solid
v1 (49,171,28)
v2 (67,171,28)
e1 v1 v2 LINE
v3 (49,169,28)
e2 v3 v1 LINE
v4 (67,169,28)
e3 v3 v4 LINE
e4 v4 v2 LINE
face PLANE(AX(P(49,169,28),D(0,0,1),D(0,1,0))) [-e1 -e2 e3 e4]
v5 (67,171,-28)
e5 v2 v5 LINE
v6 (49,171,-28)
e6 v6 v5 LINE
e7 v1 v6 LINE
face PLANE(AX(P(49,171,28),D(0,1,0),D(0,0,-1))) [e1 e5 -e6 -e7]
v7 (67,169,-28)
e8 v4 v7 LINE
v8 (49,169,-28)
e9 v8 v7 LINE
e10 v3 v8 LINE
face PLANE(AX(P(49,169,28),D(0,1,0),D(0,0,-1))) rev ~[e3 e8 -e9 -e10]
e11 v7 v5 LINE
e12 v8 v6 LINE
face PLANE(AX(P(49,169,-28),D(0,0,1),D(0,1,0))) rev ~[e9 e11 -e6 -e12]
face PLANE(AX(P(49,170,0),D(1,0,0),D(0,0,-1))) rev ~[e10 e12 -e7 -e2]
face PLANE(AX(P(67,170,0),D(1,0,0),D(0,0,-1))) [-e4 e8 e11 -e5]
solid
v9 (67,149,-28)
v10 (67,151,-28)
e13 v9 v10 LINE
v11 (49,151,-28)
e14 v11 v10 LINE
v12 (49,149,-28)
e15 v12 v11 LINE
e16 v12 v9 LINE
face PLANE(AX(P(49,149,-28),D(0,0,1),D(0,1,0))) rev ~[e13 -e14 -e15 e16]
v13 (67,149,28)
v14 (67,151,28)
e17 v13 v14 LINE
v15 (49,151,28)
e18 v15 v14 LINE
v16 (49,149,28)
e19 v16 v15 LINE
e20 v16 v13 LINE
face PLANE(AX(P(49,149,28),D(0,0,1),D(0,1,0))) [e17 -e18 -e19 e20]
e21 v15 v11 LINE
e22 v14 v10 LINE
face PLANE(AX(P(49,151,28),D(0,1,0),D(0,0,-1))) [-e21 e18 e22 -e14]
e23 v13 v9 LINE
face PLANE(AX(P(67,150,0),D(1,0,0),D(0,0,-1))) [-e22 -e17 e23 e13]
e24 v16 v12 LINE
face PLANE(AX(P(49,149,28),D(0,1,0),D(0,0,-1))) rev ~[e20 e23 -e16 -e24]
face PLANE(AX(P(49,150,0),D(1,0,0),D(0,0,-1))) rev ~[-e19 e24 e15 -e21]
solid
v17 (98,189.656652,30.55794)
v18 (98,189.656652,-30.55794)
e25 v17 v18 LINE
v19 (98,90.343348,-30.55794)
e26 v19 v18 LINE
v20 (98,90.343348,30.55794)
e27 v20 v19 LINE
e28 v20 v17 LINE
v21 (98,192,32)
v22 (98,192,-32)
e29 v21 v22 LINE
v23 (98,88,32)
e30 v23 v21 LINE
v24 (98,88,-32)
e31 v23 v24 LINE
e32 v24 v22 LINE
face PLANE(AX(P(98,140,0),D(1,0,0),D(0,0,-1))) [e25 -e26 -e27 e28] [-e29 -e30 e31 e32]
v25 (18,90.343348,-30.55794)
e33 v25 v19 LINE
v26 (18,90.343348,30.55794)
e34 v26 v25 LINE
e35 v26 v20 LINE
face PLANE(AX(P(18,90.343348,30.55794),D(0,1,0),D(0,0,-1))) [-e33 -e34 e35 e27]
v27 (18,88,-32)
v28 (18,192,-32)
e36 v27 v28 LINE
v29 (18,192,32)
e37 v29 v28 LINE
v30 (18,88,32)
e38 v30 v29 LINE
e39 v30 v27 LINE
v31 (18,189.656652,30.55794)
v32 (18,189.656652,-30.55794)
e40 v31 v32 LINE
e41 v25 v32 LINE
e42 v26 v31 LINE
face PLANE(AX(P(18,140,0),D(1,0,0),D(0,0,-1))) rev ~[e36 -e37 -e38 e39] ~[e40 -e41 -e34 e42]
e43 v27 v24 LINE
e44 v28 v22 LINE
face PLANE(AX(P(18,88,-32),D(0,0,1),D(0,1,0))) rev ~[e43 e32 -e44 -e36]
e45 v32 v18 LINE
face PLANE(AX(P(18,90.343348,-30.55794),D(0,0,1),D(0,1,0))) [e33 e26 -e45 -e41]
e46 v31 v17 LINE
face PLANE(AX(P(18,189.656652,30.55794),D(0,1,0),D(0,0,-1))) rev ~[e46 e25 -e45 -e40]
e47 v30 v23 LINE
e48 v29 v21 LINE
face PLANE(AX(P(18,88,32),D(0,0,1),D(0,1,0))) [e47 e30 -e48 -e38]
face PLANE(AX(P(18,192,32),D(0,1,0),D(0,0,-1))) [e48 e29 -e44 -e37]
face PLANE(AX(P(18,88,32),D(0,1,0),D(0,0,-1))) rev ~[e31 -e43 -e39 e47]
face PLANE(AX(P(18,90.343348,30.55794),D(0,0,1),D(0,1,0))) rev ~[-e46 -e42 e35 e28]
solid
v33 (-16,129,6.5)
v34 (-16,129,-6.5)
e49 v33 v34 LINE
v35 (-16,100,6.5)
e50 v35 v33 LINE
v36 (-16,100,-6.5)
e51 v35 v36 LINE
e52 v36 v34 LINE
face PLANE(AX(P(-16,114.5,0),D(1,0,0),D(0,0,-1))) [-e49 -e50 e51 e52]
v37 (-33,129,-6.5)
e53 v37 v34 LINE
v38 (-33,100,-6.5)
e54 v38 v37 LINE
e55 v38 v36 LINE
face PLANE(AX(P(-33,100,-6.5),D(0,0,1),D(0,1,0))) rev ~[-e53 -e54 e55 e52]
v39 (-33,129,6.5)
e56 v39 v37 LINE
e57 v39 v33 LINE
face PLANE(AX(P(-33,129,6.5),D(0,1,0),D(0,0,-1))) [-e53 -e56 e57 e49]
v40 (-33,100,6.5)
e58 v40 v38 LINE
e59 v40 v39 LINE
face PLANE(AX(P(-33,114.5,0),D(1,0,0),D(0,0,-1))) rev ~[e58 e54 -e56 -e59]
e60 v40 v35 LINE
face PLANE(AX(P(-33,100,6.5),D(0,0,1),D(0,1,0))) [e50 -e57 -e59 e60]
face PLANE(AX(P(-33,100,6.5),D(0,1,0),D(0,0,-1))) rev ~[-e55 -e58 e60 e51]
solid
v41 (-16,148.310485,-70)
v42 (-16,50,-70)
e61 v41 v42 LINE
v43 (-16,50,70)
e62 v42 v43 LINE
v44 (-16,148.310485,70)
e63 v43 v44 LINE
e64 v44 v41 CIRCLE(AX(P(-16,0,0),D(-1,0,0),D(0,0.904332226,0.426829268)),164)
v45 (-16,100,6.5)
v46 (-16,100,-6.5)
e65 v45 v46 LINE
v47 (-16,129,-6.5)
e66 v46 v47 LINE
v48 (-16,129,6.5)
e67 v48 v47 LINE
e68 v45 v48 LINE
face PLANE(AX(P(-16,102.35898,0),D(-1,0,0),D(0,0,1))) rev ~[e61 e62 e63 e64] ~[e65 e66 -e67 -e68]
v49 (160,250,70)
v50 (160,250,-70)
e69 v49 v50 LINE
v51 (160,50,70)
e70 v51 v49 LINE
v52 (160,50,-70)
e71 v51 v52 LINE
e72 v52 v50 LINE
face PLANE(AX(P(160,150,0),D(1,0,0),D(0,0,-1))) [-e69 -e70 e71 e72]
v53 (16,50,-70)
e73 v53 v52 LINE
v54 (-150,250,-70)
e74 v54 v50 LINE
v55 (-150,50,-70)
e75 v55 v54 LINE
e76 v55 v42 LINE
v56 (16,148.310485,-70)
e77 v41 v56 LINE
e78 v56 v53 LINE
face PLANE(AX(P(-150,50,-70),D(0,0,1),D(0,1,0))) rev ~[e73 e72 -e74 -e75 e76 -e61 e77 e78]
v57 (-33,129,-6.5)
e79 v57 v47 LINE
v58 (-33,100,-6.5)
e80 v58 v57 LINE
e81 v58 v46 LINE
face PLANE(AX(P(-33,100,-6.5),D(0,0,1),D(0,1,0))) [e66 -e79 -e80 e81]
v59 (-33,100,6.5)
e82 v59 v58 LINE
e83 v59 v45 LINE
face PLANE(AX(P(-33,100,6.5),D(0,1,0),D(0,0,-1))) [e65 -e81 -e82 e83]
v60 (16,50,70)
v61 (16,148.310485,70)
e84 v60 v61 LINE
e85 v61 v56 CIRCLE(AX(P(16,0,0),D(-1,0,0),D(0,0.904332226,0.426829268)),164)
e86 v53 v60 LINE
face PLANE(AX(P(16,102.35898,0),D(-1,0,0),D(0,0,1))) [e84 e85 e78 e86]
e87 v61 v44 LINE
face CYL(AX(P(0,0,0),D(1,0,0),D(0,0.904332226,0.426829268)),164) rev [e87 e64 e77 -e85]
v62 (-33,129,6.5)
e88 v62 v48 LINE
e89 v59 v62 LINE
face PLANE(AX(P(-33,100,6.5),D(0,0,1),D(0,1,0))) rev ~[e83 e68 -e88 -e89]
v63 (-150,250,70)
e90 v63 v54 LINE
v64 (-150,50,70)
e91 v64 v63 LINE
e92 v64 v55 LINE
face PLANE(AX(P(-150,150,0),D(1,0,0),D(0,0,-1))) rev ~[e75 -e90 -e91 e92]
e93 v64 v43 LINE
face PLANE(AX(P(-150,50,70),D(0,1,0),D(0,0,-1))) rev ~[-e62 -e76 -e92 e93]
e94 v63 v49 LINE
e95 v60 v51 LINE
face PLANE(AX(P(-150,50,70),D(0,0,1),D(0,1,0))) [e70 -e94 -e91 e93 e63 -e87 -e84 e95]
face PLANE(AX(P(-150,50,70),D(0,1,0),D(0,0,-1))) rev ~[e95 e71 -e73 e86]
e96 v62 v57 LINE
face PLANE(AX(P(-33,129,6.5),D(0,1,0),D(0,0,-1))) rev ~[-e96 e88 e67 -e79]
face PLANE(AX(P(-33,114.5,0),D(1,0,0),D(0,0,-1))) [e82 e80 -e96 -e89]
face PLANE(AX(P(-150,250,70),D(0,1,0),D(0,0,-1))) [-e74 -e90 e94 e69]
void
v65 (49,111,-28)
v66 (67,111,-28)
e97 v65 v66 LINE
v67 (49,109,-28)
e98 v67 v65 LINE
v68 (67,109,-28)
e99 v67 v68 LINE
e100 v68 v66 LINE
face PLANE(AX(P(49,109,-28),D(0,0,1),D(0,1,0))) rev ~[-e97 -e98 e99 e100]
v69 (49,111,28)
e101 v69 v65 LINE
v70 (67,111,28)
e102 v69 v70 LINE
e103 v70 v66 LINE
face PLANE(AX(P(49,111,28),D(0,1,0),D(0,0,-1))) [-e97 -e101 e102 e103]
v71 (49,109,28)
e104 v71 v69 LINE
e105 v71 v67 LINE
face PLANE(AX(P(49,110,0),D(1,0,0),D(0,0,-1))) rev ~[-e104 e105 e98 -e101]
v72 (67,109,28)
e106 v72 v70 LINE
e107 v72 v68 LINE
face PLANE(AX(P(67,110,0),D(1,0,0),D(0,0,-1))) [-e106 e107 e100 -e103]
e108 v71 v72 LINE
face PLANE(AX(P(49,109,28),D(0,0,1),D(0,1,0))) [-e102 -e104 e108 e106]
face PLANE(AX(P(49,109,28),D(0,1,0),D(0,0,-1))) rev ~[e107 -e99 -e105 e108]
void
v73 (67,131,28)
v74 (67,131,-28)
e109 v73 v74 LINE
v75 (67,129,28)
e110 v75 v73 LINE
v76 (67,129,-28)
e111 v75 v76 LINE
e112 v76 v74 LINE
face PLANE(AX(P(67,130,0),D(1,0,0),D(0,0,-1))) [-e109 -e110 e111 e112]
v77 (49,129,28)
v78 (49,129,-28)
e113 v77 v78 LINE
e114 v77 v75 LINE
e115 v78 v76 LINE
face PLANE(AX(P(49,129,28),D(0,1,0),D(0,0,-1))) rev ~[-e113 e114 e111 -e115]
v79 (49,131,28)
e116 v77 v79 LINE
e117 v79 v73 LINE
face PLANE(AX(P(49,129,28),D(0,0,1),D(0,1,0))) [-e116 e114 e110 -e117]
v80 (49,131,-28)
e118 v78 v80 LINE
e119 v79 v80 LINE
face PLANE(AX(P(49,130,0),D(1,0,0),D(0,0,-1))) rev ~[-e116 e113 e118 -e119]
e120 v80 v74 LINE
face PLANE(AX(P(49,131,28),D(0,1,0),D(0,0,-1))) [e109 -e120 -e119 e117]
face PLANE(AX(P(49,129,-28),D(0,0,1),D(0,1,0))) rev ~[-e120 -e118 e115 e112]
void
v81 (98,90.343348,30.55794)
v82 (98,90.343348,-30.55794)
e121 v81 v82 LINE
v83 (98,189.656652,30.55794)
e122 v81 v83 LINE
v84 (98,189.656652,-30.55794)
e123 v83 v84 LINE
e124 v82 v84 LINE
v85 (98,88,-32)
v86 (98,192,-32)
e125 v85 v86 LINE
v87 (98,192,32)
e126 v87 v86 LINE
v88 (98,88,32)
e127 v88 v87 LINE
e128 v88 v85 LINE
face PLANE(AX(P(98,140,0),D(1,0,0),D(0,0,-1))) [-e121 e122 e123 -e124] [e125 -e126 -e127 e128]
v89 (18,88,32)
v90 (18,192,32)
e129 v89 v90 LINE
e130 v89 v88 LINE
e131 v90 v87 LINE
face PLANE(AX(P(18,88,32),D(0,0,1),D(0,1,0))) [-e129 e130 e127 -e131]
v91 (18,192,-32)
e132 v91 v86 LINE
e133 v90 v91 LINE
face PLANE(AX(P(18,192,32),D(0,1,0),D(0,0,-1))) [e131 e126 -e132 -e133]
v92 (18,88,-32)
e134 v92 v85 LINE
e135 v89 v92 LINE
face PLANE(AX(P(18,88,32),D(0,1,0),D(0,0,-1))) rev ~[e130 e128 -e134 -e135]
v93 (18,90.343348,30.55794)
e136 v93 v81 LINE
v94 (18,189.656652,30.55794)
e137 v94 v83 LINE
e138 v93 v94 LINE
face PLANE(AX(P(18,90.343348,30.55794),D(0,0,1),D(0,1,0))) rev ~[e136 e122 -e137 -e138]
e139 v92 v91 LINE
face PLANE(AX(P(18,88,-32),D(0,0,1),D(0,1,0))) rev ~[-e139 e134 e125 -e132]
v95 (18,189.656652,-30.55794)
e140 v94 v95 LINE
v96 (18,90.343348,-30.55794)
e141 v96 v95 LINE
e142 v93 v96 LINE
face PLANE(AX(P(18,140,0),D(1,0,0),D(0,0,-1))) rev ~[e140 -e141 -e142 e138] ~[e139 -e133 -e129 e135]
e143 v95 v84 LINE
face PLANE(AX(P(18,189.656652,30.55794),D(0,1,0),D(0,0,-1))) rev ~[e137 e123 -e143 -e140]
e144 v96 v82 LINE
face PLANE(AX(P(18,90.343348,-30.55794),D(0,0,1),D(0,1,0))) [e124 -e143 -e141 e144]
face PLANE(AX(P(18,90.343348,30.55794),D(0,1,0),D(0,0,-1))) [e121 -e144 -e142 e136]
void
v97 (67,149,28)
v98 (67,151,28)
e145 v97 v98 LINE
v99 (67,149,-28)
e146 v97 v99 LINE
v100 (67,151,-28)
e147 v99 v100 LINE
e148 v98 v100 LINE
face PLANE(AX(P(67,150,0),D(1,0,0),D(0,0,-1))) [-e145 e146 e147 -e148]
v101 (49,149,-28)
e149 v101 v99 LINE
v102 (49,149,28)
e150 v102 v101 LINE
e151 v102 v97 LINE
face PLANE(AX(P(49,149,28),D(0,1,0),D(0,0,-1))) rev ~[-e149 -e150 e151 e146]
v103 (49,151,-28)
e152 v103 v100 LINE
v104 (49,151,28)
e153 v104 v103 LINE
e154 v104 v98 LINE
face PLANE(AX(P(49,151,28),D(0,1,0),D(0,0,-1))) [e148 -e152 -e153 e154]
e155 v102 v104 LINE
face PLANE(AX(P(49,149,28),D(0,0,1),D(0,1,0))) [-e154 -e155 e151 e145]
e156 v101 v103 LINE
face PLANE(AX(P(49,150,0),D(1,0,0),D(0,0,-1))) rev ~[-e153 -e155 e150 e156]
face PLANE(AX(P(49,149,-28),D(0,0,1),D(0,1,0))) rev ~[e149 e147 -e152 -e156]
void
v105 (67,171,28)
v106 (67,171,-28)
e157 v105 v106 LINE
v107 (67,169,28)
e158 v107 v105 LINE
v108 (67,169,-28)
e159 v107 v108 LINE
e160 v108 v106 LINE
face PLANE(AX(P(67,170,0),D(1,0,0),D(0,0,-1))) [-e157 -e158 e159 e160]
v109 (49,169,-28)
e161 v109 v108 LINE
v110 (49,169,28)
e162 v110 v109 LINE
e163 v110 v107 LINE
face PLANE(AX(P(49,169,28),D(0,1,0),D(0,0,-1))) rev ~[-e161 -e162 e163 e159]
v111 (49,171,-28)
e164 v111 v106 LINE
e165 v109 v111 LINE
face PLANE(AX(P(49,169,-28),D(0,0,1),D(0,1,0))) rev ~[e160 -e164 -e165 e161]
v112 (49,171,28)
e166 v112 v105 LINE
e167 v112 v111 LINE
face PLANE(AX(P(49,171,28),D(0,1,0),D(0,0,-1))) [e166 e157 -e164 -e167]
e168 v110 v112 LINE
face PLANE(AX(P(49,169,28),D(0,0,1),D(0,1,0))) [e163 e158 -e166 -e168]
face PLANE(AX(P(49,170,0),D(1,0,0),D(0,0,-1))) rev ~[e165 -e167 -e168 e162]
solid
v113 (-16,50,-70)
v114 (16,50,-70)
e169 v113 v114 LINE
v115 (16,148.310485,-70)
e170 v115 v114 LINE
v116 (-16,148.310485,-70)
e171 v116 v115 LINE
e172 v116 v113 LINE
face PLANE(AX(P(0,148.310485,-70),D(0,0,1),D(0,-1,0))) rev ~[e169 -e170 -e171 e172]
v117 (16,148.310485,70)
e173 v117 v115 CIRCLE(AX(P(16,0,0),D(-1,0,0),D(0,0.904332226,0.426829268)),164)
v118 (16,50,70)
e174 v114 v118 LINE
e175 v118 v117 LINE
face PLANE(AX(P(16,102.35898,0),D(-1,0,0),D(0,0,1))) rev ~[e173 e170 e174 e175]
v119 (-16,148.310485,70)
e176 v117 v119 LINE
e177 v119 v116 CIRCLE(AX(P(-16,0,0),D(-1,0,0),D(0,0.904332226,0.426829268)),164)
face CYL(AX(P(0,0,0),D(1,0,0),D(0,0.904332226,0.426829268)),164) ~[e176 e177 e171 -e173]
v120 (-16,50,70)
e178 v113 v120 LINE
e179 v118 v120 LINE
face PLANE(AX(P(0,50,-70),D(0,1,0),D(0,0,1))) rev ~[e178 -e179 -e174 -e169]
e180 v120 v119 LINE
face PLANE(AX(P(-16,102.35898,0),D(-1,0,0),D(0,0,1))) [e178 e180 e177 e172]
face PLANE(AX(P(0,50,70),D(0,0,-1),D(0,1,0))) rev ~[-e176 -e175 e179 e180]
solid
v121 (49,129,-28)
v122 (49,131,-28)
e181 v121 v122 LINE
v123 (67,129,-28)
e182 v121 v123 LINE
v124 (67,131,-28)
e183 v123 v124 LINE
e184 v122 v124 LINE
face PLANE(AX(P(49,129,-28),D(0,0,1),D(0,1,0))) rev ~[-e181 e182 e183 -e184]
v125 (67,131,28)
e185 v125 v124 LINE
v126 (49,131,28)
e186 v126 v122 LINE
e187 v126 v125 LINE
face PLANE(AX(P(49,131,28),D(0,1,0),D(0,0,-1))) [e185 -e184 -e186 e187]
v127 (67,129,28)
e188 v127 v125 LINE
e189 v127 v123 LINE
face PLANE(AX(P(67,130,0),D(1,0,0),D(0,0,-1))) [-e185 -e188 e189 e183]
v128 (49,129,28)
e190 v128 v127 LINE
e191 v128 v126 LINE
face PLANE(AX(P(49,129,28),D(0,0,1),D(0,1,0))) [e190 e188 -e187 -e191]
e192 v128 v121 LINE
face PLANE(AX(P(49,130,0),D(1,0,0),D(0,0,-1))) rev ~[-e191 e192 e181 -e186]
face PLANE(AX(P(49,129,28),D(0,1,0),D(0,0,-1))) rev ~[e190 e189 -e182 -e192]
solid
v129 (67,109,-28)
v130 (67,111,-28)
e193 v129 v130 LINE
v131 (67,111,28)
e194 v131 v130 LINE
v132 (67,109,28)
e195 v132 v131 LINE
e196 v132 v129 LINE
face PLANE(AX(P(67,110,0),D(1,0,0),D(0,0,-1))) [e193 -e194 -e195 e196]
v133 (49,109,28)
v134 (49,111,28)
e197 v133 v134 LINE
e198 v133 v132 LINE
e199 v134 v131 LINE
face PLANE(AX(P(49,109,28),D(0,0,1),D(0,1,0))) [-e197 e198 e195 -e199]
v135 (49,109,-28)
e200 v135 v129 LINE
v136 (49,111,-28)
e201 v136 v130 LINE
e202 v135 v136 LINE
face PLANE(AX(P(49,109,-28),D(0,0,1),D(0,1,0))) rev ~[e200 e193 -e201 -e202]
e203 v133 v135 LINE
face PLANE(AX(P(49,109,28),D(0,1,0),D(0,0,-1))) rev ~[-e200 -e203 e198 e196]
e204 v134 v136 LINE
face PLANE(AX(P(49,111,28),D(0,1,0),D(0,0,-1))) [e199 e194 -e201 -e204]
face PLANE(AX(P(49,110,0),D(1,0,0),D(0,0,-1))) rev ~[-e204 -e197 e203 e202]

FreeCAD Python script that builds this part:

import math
import FreeCAD as App
import Part
import Sketcher
from FreeCAD import Vector

doc = App.newDocument("Part")
params = doc.addObject("Spreadsheet::Sheet", "Params")
for row, (alias, value) in enumerate([
    ("sketch1_width", "200 mm"),
    ("sketch1_height", "140 mm"),
    ("pad1_length", "310 mm"),
    ("sketch2_radius", "164 mm"),
    ("sketch2_height", "140 mm"),
    ("pad2_length", "32 mm"),
    ("sketch3_width", "104 mm"),
    ("sketch3_height", "64 mm"),
    ("pad3_length", "80 mm"),
    ("sketch4_width", "2 mm"),
    ("sketch4_height", "56 mm"),
    ("pad4_length", "18 mm"),
    ("sketch5_width", "2 mm"),
    ("sketch5_height", "56 mm"),
    ("pad5_length", "18 mm"),
    ("sketch6_width", "2 mm"),
    ("sketch6_height", "56 mm"),
    ("pad6_length", "18 mm"),
    ("sketch7_width", "2 mm"),
    ("sketch7_height", "56 mm"),
    ("pad7_length", "18 mm"),
    ("sketch8_width", "29 mm"),
    ("sketch8_height", "13 mm"),
    ("pad8_length", "17 mm"),
    ("sketch9_radius", "164 mm"),
    ("sketch9_height", "140 mm"),
    ("pad9_length", "32 mm"),
    ("sketch10_width", "104 mm"),
    ("sketch10_height", "64 mm"),
    ("pad10_length", "80 mm"),
    ("sketch11_width", "2 mm"),
    ("sketch11_height", "56 mm"),
    ("pad11_length", "18 mm"),
    ("sketch12_width", "2 mm"),
    ("sketch12_height", "56 mm"),
    ("pad12_length", "18 mm"),
    ("sketch13_width", "2 mm"),
    ("sketch13_height", "56 mm"),
    ("pad13_length", "18 mm"),
    ("sketch14_width", "2 mm"),
    ("sketch14_height", "56 mm"),
    ("pad14_length", "18 mm"),
    ("sketch15_width", "29 mm"),
    ("sketch15_height", "13 mm"),
    ("pad15_length", "17 mm"),
], start=1):
    params.set(f"A{row}", alias)
    params.set(f"B{row}", "=" + value)
    params.setAlias(f"B{row}", alias)

body = doc.addObject("PartDesign::Body", "Body")

sketch1 = body.newObject("Sketcher::SketchObject", "Sketch")
sketch1.AttachmentSupport = (doc.getObject("YZ_Plane"), [""])
sketch1.MapMode = "FlatFace"
sketch1.AttachmentOffset = App.Placement(Vector(0, 0, -150), App.Rotation())
sketch1.addGeometry([
    Part.LineSegment(Vector(250, 70, 0), Vector(50, 70, 0)),
    Part.LineSegment(Vector(50, 70, 0), Vector(50, -70, 0)),
    Part.LineSegment(Vector(50, -70, 0), Vector(250, -70, 0)),
    Part.LineSegment(Vector(250, -70, 0), Vector(250, 70, 0)),
], False)
sketch1.addConstraint([
    Sketcher.Constraint("Coincident", 0, 2, 1, 1),
    Sketcher.Constraint("Coincident", 1, 2, 2, 1),
    Sketcher.Constraint("Coincident", 2, 2, 3, 1),
    Sketcher.Constraint("Coincident", 3, 2, 0, 1),
    Sketcher.Constraint("Horizontal", 0),
    Sketcher.Constraint("Vertical", 1),
    Sketcher.Constraint("Horizontal", 2),
    Sketcher.Constraint("Vertical", 3),
    Sketcher.Constraint("DistanceX", 0, 2, 0, 1, 200.0),
    Sketcher.Constraint("DistanceY", 1, 2, 1, 1, 140.0),
    Sketcher.Constraint("DistanceX", -1, 1, 0, 2, 50.0),
    Sketcher.Constraint("DistanceY", -1, 1, 0, 2, 70.0),
])
sketch1.setExpression("Constraints[8]", "Params.sketch1_width")
sketch1.setExpression("Constraints[9]", "Params.sketch1_height")
pad1 = body.newObject("PartDesign::Pad", "Pad")
pad1.Profile = sketch1
pad1.setExpression("Length", "Params.pad1_length")
body2 = doc.addObject("PartDesign::Body", "Body001")

sketch2 = body2.newObject("Sketcher::SketchObject", "Sketch001")
sketch2.AttachmentSupport = (doc.getObject("YZ_Plane001"), [""])
sketch2.MapMode = "FlatFace"
sketch2.addGeometry([
    Part.LineSegment(Vector(50, 70, 0), Vector(50, -70, 0)),
    Part.LineSegment(Vector(50, -70, 0), Vector(148.310485, -70, 0)),
    Part.ArcOfCircle(Part.Circle(Vector(0, 0, 0), Vector(0, 0, 1), 164), math.radians(-25.266505), math.radians(25.266505)),
    Part.LineSegment(Vector(148.310485, 70, 0), Vector(50, 70, 0)),
], False)
sketch2.addConstraint([
    Sketcher.Constraint("Coincident", 0, 2, 1, 1),
    Sketcher.Constraint("Coincident", 1, 2, 2, 1),
    Sketcher.Constraint("Coincident", 2, 2, 3, 1),
    Sketcher.Constraint("Coincident", 3, 2, 0, 1),
    Sketcher.Constraint("Vertical", 0),
    Sketcher.Constraint("Horizontal", 1),
    Sketcher.Constraint("Horizontal", 3),
    Sketcher.Constraint("Coincident", 2, 3, -1, 1),
    Sketcher.Constraint("Vertical", 1, 2, 2, 2),
    Sketcher.Constraint("Radius", 2, 164.0),
    Sketcher.Constraint("DistanceY", 0, 2, 0, 1, 140.0),
    Sketcher.Constraint("DistanceX", -1, 1, 0, 2, 50.0),
])
sketch2.setExpression("Constraints[9]", "Params.sketch2_radius")
sketch2.setExpression("Constraints[10]", "Params.sketch2_height")
pad2 = body2.newObject("PartDesign::Pad", "Pad001")
pad2.Profile = sketch2
pad2.setExpression("Length", "Params.pad2_length")
pad2.Midplane = True
body3 = doc.addObject("PartDesign::Body", "Body002")

sketch3 = body3.newObject("Sketcher::SketchObject", "Sketch002")
sketch3.AttachmentSupport = (doc.getObject("YZ_Plane002"), [""])
sketch3.MapMode = "FlatFace"
sketch3.AttachmentOffset = App.Placement(Vector(0, 0, 18), App.Rotation())
sketch3.addGeometry([
    Part.LineSegment(Vector(192, 32, 0), Vector(88, 32, 0)),
    Part.LineSegment(Vector(88, 32, 0), Vector(88, -32, 0)),
    Part.LineSegment(Vector(88, -32, 0), Vector(192, -32, 0)),
    Part.LineSegment(Vector(192, -32, 0), Vector(192, 32, 0)),
    Part.LineSegment(Vector(90.343348, -30.55794, 0), Vector(90.343348, 30.55794, 0)),
    Part.LineSegment(Vector(90.343348, 30.55794, 0), Vector(189.656652, 30.55794, 0)),
    Part.LineSegment(Vector(189.656652, 30.55794, 0), Vector(189.656652, -30.55794, 0)),
    Part.LineSegment(Vector(189.656652, -30.55794, 0), Vector(90.343348, -30.55794, 0)),
], False)
sketch3.addConstraint([
    Sketcher.Constraint("Coincident", 0, 2, 1, 1),
    Sketcher.Constraint("Coincident", 1, 2, 2, 1),
    Sketcher.Constraint("Coincident", 2, 2, 3, 1),
    Sketcher.Constraint("Coincident", 3, 2, 0, 1),
    Sketcher.Constraint("Coincident", 4, 2, 5, 1),
    Sketcher.Constraint("Coincident", 5, 2, 6, 1),
    Sketcher.Constraint("Coincident", 6, 2, 7, 1),
    Sketcher.Constraint("Coincident", 7, 2, 4, 1),
    Sketcher.Constraint("Horizontal", 0),
    Sketcher.Constraint("Vertical", 1),
    Sketcher.Constraint("Horizontal", 2),
    Sketcher.Constraint("Vertical", 3),
    Sketcher.Constraint("Vertical", 4),
    Sketcher.Constraint("Horizontal", 5),
    Sketcher.Constraint("Vertical", 6),
    Sketcher.Constraint("Horizontal", 7),
    Sketcher.Constraint("DistanceX", 0, 2, 0, 1, 104.0),
    Sketcher.Constraint("DistanceY", 1, 2, 1, 1, 64.0),
    Sketcher.Constraint("DistanceX", -1, 1, 0, 2, 88.0),
    Sketcher.Constraint("DistanceY", -1, 1, 0, 2, 32.0),
    Sketcher.Constraint("DistanceY", 4, 1, 4, 2, 61.11588),
    Sketcher.Constraint("DistanceX", 5, 1, 5, 2, 99.313305),
    Sketcher.Constraint("DistanceY", -1, 1, 4, 2, 30.55794),
    Sketcher.Constraint("DistanceX", -1, 1, 4, 2, 90.343348),
])
sketch3.setExpression("Constraints[16]", "Params.sketch3_width")
sketch3.setExpression("Constraints[17]", "Params.sketch3_height")
pad3 = body3.newObject("PartDesign::Pad", "Pad002")
pad3.Profile = sketch3
pad3.setExpression("Length", "Params.pad3_length")
body4 = doc.addObject("PartDesign::Body", "Body003")

sketch4 = body4.newObject("Sketcher::SketchObject", "Sketch003")
sketch4.AttachmentSupport = (doc.getObject("YZ_Plane003"), [""])
sketch4.MapMode = "FlatFace"
sketch4.AttachmentOffset = App.Placement(Vector(0, 0, 49), App.Rotation())
sketch4.addGeometry([
    Part.LineSegment(Vector(111, 28, 0), Vector(109, 28, 0)),
    Part.LineSegment(Vector(109, 28, 0), Vector(109, -28, 0)),
    Part.LineSegment(Vector(109, -28, 0), Vector(111, -28, 0)),
    Part.LineSegment(Vector(111, -28, 0), Vector(111, 28, 0)),
], False)
sketch4.addConstraint([
    Sketcher.Constraint("Coincident", 0, 2, 1, 1),
    Sketcher.Constraint("Coincident", 1, 2, 2, 1),
    Sketcher.Constraint("Coincident", 2, 2, 3, 1),
    Sketcher.Constraint("Coincident", 3, 2, 0, 1),
    Sketcher.Constraint("Horizontal", 0),
    Sketcher.Constraint("Vertical", 1),
    Sketcher.Constraint("Horizontal", 2),
    Sketcher.Constraint("Vertical", 3),
    Sketcher.Constraint("DistanceX", 0, 2, 0, 1, 2.0),
    Sketcher.Constraint("DistanceY", 1, 2, 1, 1, 56.0),
    Sketcher.Constraint("DistanceX", -1, 1, 0, 2, 109.0),
    Sketcher.Constraint("DistanceY", -1, 1, 0, 2, 28.0),
])
sketch4.setExpression("Constraints[8]", "Params.sketch4_width")
sketch4.setExpression("Constraints[9]", "Params.sketch4_height")
pad4 = body4.newObject("PartDesign::Pad", "Pad003")
pad4.Profile = sketch4
pad4.setExpression("Length", "Params.pad4_length")
body5 = doc.addObject("PartDesign::Body", "Body004")

sketch5 = body5.newObject("Sketcher::SketchObject", "Sketch004")
sketch5.AttachmentSupport = (doc.getObject("YZ_Plane004"), [""])
sketch5.MapMode = "FlatFace"
sketch5.AttachmentOffset = App.Placement(Vector(0, 0, 49), App.Rotation())
sketch5.addGeometry([
    Part.LineSegment(Vector(131, 28, 0), Vector(129, 28, 0)),
    Part.LineSegment(Vector(129, 28, 0), Vector(129, -28, 0)),
    Part.LineSegment(Vector(129, -28, 0), Vector(131, -28, 0)),
    Part.LineSegment(Vector(131, -28, 0), Vector(131, 28, 0)),
], False)
sketch5.addConstraint([
    Sketcher.Constraint("Coincident", 0, 2, 1, 1),
    Sketcher.Constraint("Coincident", 1, 2, 2, 1),
    Sketcher.Constraint("Coincident", 2, 2, 3, 1),
    Sketcher.Constraint("Coincident", 3, 2, 0, 1),
    Sketcher.Constraint("Horizontal", 0),
    Sketcher.Constraint("Vertical", 1),
    Sketcher.Constraint("Horizontal", 2),
    Sketcher.Constraint("Vertical", 3),
    Sketcher.Constraint("DistanceX", 0, 2, 0, 1, 2.0),
    Sketcher.Constraint("DistanceY", 1, 2, 1, 1, 56.0),
    Sketcher.Constraint("DistanceX", -1, 1, 0, 2, 129.0),
    Sketcher.Constraint("DistanceY", -1, 1, 0, 2, 28.0),
])
sketch5.setExpression("Constraints[8]", "Params.sketch5_width")
sketch5.setExpression("Constraints[9]", "Params.sketch5_height")
pad5 = body5.newObject("PartDesign::Pad", "Pad004")
pad5.Profile = sketch5
pad5.setExpression("Length", "Params.pad5_length")
body6 = doc.addObject("PartDesign::Body", "Body005")

sketch6 = body6.newObject("Sketcher::SketchObject", "Sketch005")
sketch6.AttachmentSupport = (doc.getObject("YZ_Plane005"), [""])
sketch6.MapMode = "FlatFace"
sketch6.AttachmentOffset = App.Placement(Vector(0, 0, 49), App.Rotation())
sketch6.addGeometry([
    Part.LineSegment(Vector(151, 28, 0), Vector(149, 28, 0)),
    Part.LineSegment(Vector(149, 28, 0), Vector(149, -28, 0)),
    Part.LineSegment(Vector(149, -28, 0), Vector(151, -28, 0)),
    Part.LineSegment(Vector(151, -28, 0), Vector(151, 28, 0)),
], False)
sketch6.addConstraint([
    Sketcher.Constraint("Coincident", 0, 2, 1, 1),
    Sketcher.Constraint("Coincident", 1, 2, 2, 1),
    Sketcher.Constraint("Coincident", 2, 2, 3, 1),
    Sketcher.Constraint("Coincident", 3, 2, 0, 1),
    Sketcher.Constraint("Horizontal", 0),
    Sketcher.Constraint("Vertical", 1),
    Sketcher.Constraint("Horizontal", 2),
    Sketcher.Constraint("Vertical", 3),
    Sketcher.Constraint("DistanceX", 0, 2, 0, 1, 2.0),
    Sketcher.Constraint("DistanceY", 1, 2, 1, 1, 56.0),
    Sketcher.Constraint("DistanceX", -1, 1, 0, 2, 149.0),
    Sketcher.Constraint("DistanceY", -1, 1, 0, 2, 28.0),
])
sketch6.setExpression("Constraints[8]", "Params.sketch6_width")
sketch6.setExpression("Constraints[9]", "Params.sketch6_height")
pad6 = body6.newObject("PartDesign::Pad", "Pad005")
pad6.Profile = sketch6
pad6.setExpression("Length", "Params.pad6_length")
body7 = doc.addObject("PartDesign::Body", "Body006")

sketch7 = body7.newObject("Sketcher::SketchObject", "Sketch006")
sketch7.AttachmentSupport = (doc.getObject("YZ_Plane006"), [""])
sketch7.MapMode = "FlatFace"
sketch7.AttachmentOffset = App.Placement(Vector(0, 0, 49), App.Rotation())
sketch7.addGeometry([
    Part.LineSegment(Vector(171, 28, 0), Vector(169, 28, 0)),
    Part.LineSegment(Vector(169, 28, 0), Vector(169, -28, 0)),
    Part.LineSegment(Vector(169, -28, 0), Vector(171, -28, 0)),
    Part.LineSegment(Vector(171, -28, 0), Vector(171, 28, 0)),
], False)
sketch7.addConstraint([
    Sketcher.Constraint("Coincident", 0, 2, 1, 1),
    Sketcher.Constraint("Coincident", 1, 2, 2, 1),
    Sketcher.Constraint("Coincident", 2, 2, 3, 1),
    Sketcher.Constraint("Coincident", 3, 2, 0, 1),
    Sketcher.Constraint("Horizontal", 0),
    Sketcher.Constraint("Vertical", 1),
    Sketcher.Constraint("Horizontal", 2),
    Sketcher.Constraint("Vertical", 3),
    Sketcher.Constraint("DistanceX", 0, 2, 0, 1, 2.0),
    Sketcher.Constraint("DistanceY", 1, 2, 1, 1, 56.0),
    Sketcher.Constraint("DistanceX", -1, 1, 0, 2, 169.0),
    Sketcher.Constraint("DistanceY", -1, 1, 0, 2, 28.0),
])
sketch7.setExpression("Constraints[8]", "Params.sketch7_width")
sketch7.setExpression("Constraints[9]", "Params.sketch7_height")
pad7 = body7.newObject("PartDesign::Pad", "Pad006")
pad7.Profile = sketch7
pad7.setExpression("Length", "Params.pad7_length")
body8 = doc.addObject("PartDesign::Body", "Body007")

sketch8 = body8.newObject("Sketcher::SketchObject", "Sketch007")
sketch8.AttachmentSupport = (doc.getObject("YZ_Plane007"), [""])
sketch8.MapMode = "FlatFace"
sketch8.AttachmentOffset = App.Placement(Vector(0, 0, -33), App.Rotation())
sketch8.addGeometry([
    Part.LineSegment(Vector(129, 6.5, 0), Vector(100, 6.5, 0)),
    Part.LineSegment(Vector(100, 6.5, 0), Vector(100, -6.5, 0)),
    Part.LineSegment(Vector(100, -6.5, 0), Vector(129, -6.5, 0)),
    Part.LineSegment(Vector(129, -6.5, 0), Vector(129, 6.5, 0)),
], False)
sketch8.addConstraint([
    Sketcher.Constraint("Coincident", 0, 2, 1, 1),
    Sketcher.Constraint("Coincident", 1, 2, 2, 1),
    Sketcher.Constraint("Coincident", 2, 2, 3, 1),
    Sketcher.Constraint("Coincident", 3, 2, 0, 1),
    Sketcher.Constraint("Horizontal", 0),
    Sketcher.Constraint("Vertical", 1),
    Sketcher.Constraint("Horizontal", 2),
    Sketcher.Constraint("Vertical", 3),
    Sketcher.Constraint("DistanceX", 0, 2, 0, 1, 29.0),
    Sketcher.Constraint("DistanceY", 1, 2, 1, 1, 13.0),
    Sketcher.Constraint("DistanceX", -1, 1, 0, 2, 100.0),
    Sketcher.Constraint("DistanceY", -1, 1, 0, 2, 6.5),
])
sketch8.setExpression("Constraints[8]", "Params.sketch8_width")
sketch8.setExpression("Constraints[9]", "Params.sketch8_height")
pad8 = body8.newObject("PartDesign::Pad", "Pad007")
pad8.Profile = sketch8
pad8.setExpression("Length", "Params.pad8_length")
doc.recompute()

boolean = body.newObject("PartDesign::Boolean", "Boolean")
boolean.Type = "Cut"
boolean.addObjects([body5])
doc.recompute()

boolean2 = body.newObject("PartDesign::Boolean", "Boolean001")
boolean2.Type = "Cut"
boolean2.addObjects([body3])
doc.recompute()

boolean3 = body.newObject("PartDesign::Boolean", "Boolean002")
boolean3.Type = "Cut"
boolean3.addObjects([body7])
doc.recompute()

boolean4 = body.newObject("PartDesign::Boolean", "Boolean003")
boolean4.Type = "Cut"
boolean4.addObjects([body6])
doc.recompute()

boolean5 = body.newObject("PartDesign::Boolean", "Boolean004")
boolean5.Type = "Cut"
boolean5.addObjects([body8])
doc.recompute()

boolean6 = body.newObject("PartDesign::Boolean", "Boolean005")
boolean6.Type = "Cut"
boolean6.addObjects([body2])
doc.recompute()

boolean7 = body.newObject("PartDesign::Boolean", "Boolean006")
boolean7.Type = "Cut"
boolean7.addObjects([body4])
body9 = doc.addObject("PartDesign::Body", "Body008")

sketch9 = body9.newObject("Sketcher::SketchObject", "Sketch008")
sketch9.AttachmentSupport = (doc.getObject("YZ_Plane008"), [""])
sketch9.MapMode = "FlatFace"
sketch9.addGeometry([
    Part.LineSegment(Vector(50, 70, 0), Vector(50, -70, 0)),
    Part.LineSegment(Vector(50, -70, 0), Vector(148.310485, -70, 0)),
    Part.ArcOfCircle(Part.Circle(Vector(0, 0, 0), Vector(0, 0, 1), 164), math.radians(-25.266505), math.radians(25.266505)),
    Part.LineSegment(Vector(148.310485, 70, 0), Vector(50, 70, 0)),
], False)
sketch9.addConstraint([
    Sketcher.Constraint("Coincident", 0, 2, 1, 1),
    Sketcher.Constraint("Coincident", 1, 2, 2, 1),
    Sketcher.Constraint("Coincident", 2, 2, 3, 1),
    Sketcher.Constraint("Coincident", 3, 2, 0, 1),
    Sketcher.Constraint("Vertical", 0),
    Sketcher.Constraint("Horizontal", 1),
    Sketcher.Constraint("Horizontal", 3),
    Sketcher.Constraint("Coincident", 2, 3, -1, 1),
    Sketcher.Constraint("Vertical", 1, 2, 2, 2),
    Sketcher.Constraint("Radius", 2, 164.0),
    Sketcher.Constraint("DistanceY", 0, 2, 0, 1, 140.0),
    Sketcher.Constraint("DistanceX", -1, 1, 0, 2, 50.0),
])
sketch9.setExpression("Constraints[9]", "Params.sketch9_radius")
sketch9.setExpression("Constraints[10]", "Params.sketch9_height")
pad9 = body9.newObject("PartDesign::Pad", "Pad008")
pad9.Profile = sketch9
pad9.setExpression("Length", "Params.pad9_length")
pad9.Midplane = True
body10 = doc.addObject("PartDesign::Body", "Body009")

sketch10 = body10.newObject("Sketcher::SketchObject", "Sketch009")
sketch10.AttachmentSupport = (doc.getObject("YZ_Plane009"), [""])
sketch10.MapMode = "FlatFace"
sketch10.AttachmentOffset = App.Placement(Vector(0, 0, 18), App.Rotation())
sketch10.addGeometry([
    Part.LineSegment(Vector(192, 32, 0), Vector(88, 32, 0)),
    Part.LineSegment(Vector(88, 32, 0), Vector(88, -32, 0)),
    Part.LineSegment(Vector(88, -32, 0), Vector(192, -32, 0)),
    Part.LineSegment(Vector(192, -32, 0), Vector(192, 32, 0)),
    Part.LineSegment(Vector(90.343348, -30.55794, 0), Vector(90.343348, 30.55794, 0)),
    Part.LineSegment(Vector(90.343348, 30.55794, 0), Vector(189.656652, 30.55794, 0)),
    Part.LineSegment(Vector(189.656652, 30.55794, 0), Vector(189.656652, -30.55794, 0)),
    Part.LineSegment(Vector(189.656652, -30.55794, 0), Vector(90.343348, -30.55794, 0)),
], False)
sketch10.addConstraint([
    Sketcher.Constraint("Coincident", 0, 2, 1, 1),
    Sketcher.Constraint("Coincident", 1, 2, 2, 1),
    Sketcher.Constraint("Coincident", 2, 2, 3, 1),
    Sketcher.Constraint("Coincident", 3, 2, 0, 1),
    Sketcher.Constraint("Coincident", 4, 2, 5, 1),
    Sketcher.Constraint("Coincident", 5, 2, 6, 1),
    Sketcher.Constraint("Coincident", 6, 2, 7, 1),
    Sketcher.Constraint("Coincident", 7, 2, 4, 1),
    Sketcher.Constraint("Horizontal", 0),
    Sketcher.Constraint("Vertical", 1),
    Sketcher.Constraint("Horizontal", 2),
    Sketcher.Constraint("Vertical", 3),
    Sketcher.Constraint("Vertical", 4),
    Sketcher.Constraint("Horizontal", 5),
    Sketcher.Constraint("Vertical", 6),
    Sketcher.Constraint("Horizontal", 7),
    Sketcher.Constraint("DistanceX", 0, 2, 0, 1, 104.0),
    Sketcher.Constraint("DistanceY", 1, 2, 1, 1, 64.0),
    Sketcher.Constraint("DistanceX", -1, 1, 0, 2, 88.0),
    Sketcher.Constraint("DistanceY", -1, 1, 0, 2, 32.0),
    Sketcher.Constraint("DistanceY", 4, 1, 4, 2, 61.11588),
    Sketcher.Constraint("DistanceX", 5, 1, 5, 2, 99.313305),
    Sketcher.Constraint("DistanceY", -1, 1, 4, 2, 30.55794),
    Sketcher.Constraint("DistanceX", -1, 1, 4, 2, 90.343348),
])
sketch10.setExpression("Constraints[16]", "Params.sketch10_width")
sketch10.setExpression("Constraints[17]", "Params.sketch10_height")
pad10 = body10.newObject("PartDesign::Pad", "Pad009")
pad10.Profile = sketch10
pad10.setExpression("Length", "Params.pad10_length")
body11 = doc.addObject("PartDesign::Body", "Body010")

sketch11 = body11.newObject("Sketcher::SketchObject", "Sketch010")
sketch11.AttachmentSupport = (doc.getObject("YZ_Plane010"), [""])
sketch11.MapMode = "FlatFace"
sketch11.AttachmentOffset = App.Placement(Vector(0, 0, 49), App.Rotation())
sketch11.addGeometry([
    Part.LineSegment(Vector(111, 28, 0), Vector(109, 28, 0)),
    Part.LineSegment(Vector(109, 28, 0), Vector(109, -28, 0)),
    Part.LineSegment(Vector(109, -28, 0), Vector(111, -28, 0)),
    Part.LineSegment(Vector(111, -28, 0), Vector(111, 28, 0)),
], False)
sketch11.addConstraint([
    Sketcher.Constraint("Coincident", 0, 2, 1, 1),
    Sketcher.Constraint("Coincident", 1, 2, 2, 1),
    Sketcher.Constraint("Coincident", 2, 2, 3, 1),
    Sketcher.Constraint("Coincident", 3, 2, 0, 1),
    Sketcher.Constraint("Horizontal", 0),
    Sketcher.Constraint("Vertical", 1),
    Sketcher.Constraint("Horizontal", 2),
    Sketcher.Constraint("Vertical", 3),
    Sketcher.Constraint("DistanceX", 0, 2, 0, 1, 2.0),
    Sketcher.Constraint("DistanceY", 1, 2, 1, 1, 56.0),
    Sketcher.Constraint("DistanceX", -1, 1, 0, 2, 109.0),
    Sketcher.Constraint("DistanceY", -1, 1, 0, 2, 28.0),
])
sketch11.setExpression("Constraints[8]", "Params.sketch11_width")
sketch11.setExpression("Constraints[9]", "Params.sketch11_height")
pad11 = body11.newObject("PartDesign::Pad", "Pad010")
pad11.Profile = sketch11
pad11.setExpression("Length", "Params.pad11_length")
body12 = doc.addObject("PartDesign::Body", "Body011")

sketch12 = body12.newObject("Sketcher::SketchObject", "Sketch011")
sketch12.AttachmentSupport = (doc.getObject("YZ_Plane011"), [""])
sketch12.MapMode = "FlatFace"
sketch12.AttachmentOffset = App.Placement(Vector(0, 0, 49), App.Rotation())
sketch12.addGeometry([
    Part.LineSegment(Vector(131, 28, 0), Vector(129, 28, 0)),
    Part.LineSegment(Vector(129, 28, 0), Vector(129, -28, 0)),
    Part.LineSegment(Vector(129, -28, 0), Vector(131, -28, 0)),
    Part.LineSegment(Vector(131, -28, 0), Vector(131, 28, 0)),
], False)
sketch12.addConstraint([
    Sketcher.Constraint("Coincident", 0, 2, 1, 1),
    Sketcher.Constraint("Coincident", 1, 2, 2, 1),
    Sketcher.Constraint("Coincident", 2, 2, 3, 1),
    Sketcher.Constraint("Coincident", 3, 2, 0, 1),
    Sketcher.Constraint("Horizontal", 0),
    Sketcher.Constraint("Vertical", 1),
    Sketcher.Constraint("Horizontal", 2),
    Sketcher.Constraint("Vertical", 3),
    Sketcher.Constraint("DistanceX", 0, 2, 0, 1, 2.0),
    Sketcher.Constraint("DistanceY", 1, 2, 1, 1, 56.0),
    Sketcher.Constraint("DistanceX", -1, 1, 0, 2, 129.0),
    Sketcher.Constraint("DistanceY", -1, 1, 0, 2, 28.0),
])
sketch12.setExpression("Constraints[8]", "Params.sketch12_width")
sketch12.setExpression("Constraints[9]", "Params.sketch12_height")
pad12 = body12.newObject("PartDesign::Pad", "Pad011")
pad12.Profile = sketch12
pad12.setExpression("Length", "Params.pad12_length")
body13 = doc.addObject("PartDesign::Body", "Body012")

sketch13 = body13.newObject("Sketcher::SketchObject", "Sketch012")
sketch13.AttachmentSupport = (doc.getObject("YZ_Plane012"), [""])
sketch13.MapMode = "FlatFace"
sketch13.AttachmentOffset = App.Placement(Vector(0, 0, 49), App.Rotation())
sketch13.addGeometry([
    Part.LineSegment(Vector(151, 28, 0), Vector(149, 28, 0)),
    Part.LineSegment(Vector(149, 28, 0), Vector(149, -28, 0)),
    Part.LineSegment(Vector(149, -28, 0), Vector(151, -28, 0)),
    Part.LineSegment(Vector(151, -28, 0), Vector(151, 28, 0)),
], False)
sketch13.addConstraint([
    Sketcher.Constraint("Coincident", 0, 2, 1, 1),
    Sketcher.Constraint("Coincident", 1, 2, 2, 1),
    Sketcher.Constraint("Coincident", 2, 2, 3, 1),
    Sketcher.Constraint("Coincident", 3, 2, 0, 1),
    Sketcher.Constraint("Horizontal", 0),
    Sketcher.Constraint("Vertical", 1),
    Sketcher.Constraint("Horizontal", 2),
    Sketcher.Constraint("Vertical", 3),
    Sketcher.Constraint("DistanceX", 0, 2, 0, 1, 2.0),
    Sketcher.Constraint("DistanceY", 1, 2, 1, 1, 56.0),
    Sketcher.Constraint("DistanceX", -1, 1, 0, 2, 149.0),
    Sketcher.Constraint("DistanceY", -1, 1, 0, 2, 28.0),
])
sketch13.setExpression("Constraints[8]", "Params.sketch13_width")
sketch13.setExpression("Constraints[9]", "Params.sketch13_height")
pad13 = body13.newObject("PartDesign::Pad", "Pad012")
pad13.Profile = sketch13
pad13.setExpression("Length", "Params.pad13_length")
body14 = doc.addObject("PartDesign::Body", "Body013")

sketch14 = body14.newObject("Sketcher::SketchObject", "Sketch013")
sketch14.AttachmentSupport = (doc.getObject("YZ_Plane013"), [""])
sketch14.MapMode = "FlatFace"
sketch14.AttachmentOffset = App.Placement(Vector(0, 0, 49), App.Rotation())
sketch14.addGeometry([
    Part.LineSegment(Vector(171, 28, 0), Vector(169, 28, 0)),
    Part.LineSegment(Vector(169, 28, 0), Vector(169, -28, 0)),
    Part.LineSegment(Vector(169, -28, 0), Vector(171, -28, 0)),
    Part.LineSegment(Vector(171, -28, 0), Vector(171, 28, 0)),
], False)
sketch14.addConstraint([
    Sketcher.Constraint("Coincident", 0, 2, 1, 1),
    Sketcher.Constraint("Coincident", 1, 2, 2, 1),
    Sketcher.Constraint("Coincident", 2, 2, 3, 1),
    Sketcher.Constraint("Coincident", 3, 2, 0, 1),
    Sketcher.Constraint("Horizontal", 0),
    Sketcher.Constraint("Vertical", 1),
    Sketcher.Constraint("Horizontal", 2),
    Sketcher.Constraint("Vertical", 3),
    Sketcher.Constraint("DistanceX", 0, 2, 0, 1, 2.0),
    Sketcher.Constraint("DistanceY", 1, 2, 1, 1, 56.0),
    Sketcher.Constraint("DistanceX", -1, 1, 0, 2, 169.0),
    Sketcher.Constraint("DistanceY", -1, 1, 0, 2, 28.0),
])
sketch14.setExpression("Constraints[8]", "Params.sketch14_width")
sketch14.setExpression("Constraints[9]", "Params.sketch14_height")
pad14 = body14.newObject("PartDesign::Pad", "Pad013")
pad14.Profile = sketch14
pad14.setExpression("Length", "Params.pad14_length")
body15 = doc.addObject("PartDesign::Body", "Body014")

sketch15 = body15.newObject("Sketcher::SketchObject", "Sketch014")
sketch15.AttachmentSupport = (doc.getObject("YZ_Plane014"), [""])
sketch15.MapMode = "FlatFace"
sketch15.AttachmentOffset = App.Placement(Vector(0, 0, -33), App.Rotation())
sketch15.addGeometry([
    Part.LineSegment(Vector(129, 6.5, 0), Vector(100, 6.5, 0)),
    Part.LineSegment(Vector(100, 6.5, 0), Vector(100, -6.5, 0)),
    Part.LineSegment(Vector(100, -6.5, 0), Vector(129, -6.5, 0)),
    Part.LineSegment(Vector(129, -6.5, 0), Vector(129, 6.5, 0)),
], False)
sketch15.addConstraint([
    Sketcher.Constraint("Coincident", 0, 2, 1, 1),
    Sketcher.Constraint("Coincident", 1, 2, 2, 1),
    Sketcher.Constraint("Coincident", 2, 2, 3, 1),
    Sketcher.Constraint("Coincident", 3, 2, 0, 1),
    Sketcher.Constraint("Horizontal", 0),
    Sketcher.Constraint("Vertical", 1),
    Sketcher.Constraint("Horizontal", 2),
    Sketcher.Constraint("Vertical", 3),
    Sketcher.Constraint("DistanceX", 0, 2, 0, 1, 29.0),
    Sketcher.Constraint("DistanceY", 1, 2, 1, 1, 13.0),
    Sketcher.Constraint("DistanceX", -1, 1, 0, 2, 100.0),
    Sketcher.Constraint("DistanceY", -1, 1, 0, 2, 6.5),
])
sketch15.setExpression("Constraints[8]", "Params.sketch15_width")
sketch15.setExpression("Constraints[9]", "Params.sketch15_height")
pad15 = body15.newObject("PartDesign::Pad", "Pad014")
pad15.Profile = sketch15
pad15.setExpression("Length", "Params.pad15_length")

doc.recompute()
